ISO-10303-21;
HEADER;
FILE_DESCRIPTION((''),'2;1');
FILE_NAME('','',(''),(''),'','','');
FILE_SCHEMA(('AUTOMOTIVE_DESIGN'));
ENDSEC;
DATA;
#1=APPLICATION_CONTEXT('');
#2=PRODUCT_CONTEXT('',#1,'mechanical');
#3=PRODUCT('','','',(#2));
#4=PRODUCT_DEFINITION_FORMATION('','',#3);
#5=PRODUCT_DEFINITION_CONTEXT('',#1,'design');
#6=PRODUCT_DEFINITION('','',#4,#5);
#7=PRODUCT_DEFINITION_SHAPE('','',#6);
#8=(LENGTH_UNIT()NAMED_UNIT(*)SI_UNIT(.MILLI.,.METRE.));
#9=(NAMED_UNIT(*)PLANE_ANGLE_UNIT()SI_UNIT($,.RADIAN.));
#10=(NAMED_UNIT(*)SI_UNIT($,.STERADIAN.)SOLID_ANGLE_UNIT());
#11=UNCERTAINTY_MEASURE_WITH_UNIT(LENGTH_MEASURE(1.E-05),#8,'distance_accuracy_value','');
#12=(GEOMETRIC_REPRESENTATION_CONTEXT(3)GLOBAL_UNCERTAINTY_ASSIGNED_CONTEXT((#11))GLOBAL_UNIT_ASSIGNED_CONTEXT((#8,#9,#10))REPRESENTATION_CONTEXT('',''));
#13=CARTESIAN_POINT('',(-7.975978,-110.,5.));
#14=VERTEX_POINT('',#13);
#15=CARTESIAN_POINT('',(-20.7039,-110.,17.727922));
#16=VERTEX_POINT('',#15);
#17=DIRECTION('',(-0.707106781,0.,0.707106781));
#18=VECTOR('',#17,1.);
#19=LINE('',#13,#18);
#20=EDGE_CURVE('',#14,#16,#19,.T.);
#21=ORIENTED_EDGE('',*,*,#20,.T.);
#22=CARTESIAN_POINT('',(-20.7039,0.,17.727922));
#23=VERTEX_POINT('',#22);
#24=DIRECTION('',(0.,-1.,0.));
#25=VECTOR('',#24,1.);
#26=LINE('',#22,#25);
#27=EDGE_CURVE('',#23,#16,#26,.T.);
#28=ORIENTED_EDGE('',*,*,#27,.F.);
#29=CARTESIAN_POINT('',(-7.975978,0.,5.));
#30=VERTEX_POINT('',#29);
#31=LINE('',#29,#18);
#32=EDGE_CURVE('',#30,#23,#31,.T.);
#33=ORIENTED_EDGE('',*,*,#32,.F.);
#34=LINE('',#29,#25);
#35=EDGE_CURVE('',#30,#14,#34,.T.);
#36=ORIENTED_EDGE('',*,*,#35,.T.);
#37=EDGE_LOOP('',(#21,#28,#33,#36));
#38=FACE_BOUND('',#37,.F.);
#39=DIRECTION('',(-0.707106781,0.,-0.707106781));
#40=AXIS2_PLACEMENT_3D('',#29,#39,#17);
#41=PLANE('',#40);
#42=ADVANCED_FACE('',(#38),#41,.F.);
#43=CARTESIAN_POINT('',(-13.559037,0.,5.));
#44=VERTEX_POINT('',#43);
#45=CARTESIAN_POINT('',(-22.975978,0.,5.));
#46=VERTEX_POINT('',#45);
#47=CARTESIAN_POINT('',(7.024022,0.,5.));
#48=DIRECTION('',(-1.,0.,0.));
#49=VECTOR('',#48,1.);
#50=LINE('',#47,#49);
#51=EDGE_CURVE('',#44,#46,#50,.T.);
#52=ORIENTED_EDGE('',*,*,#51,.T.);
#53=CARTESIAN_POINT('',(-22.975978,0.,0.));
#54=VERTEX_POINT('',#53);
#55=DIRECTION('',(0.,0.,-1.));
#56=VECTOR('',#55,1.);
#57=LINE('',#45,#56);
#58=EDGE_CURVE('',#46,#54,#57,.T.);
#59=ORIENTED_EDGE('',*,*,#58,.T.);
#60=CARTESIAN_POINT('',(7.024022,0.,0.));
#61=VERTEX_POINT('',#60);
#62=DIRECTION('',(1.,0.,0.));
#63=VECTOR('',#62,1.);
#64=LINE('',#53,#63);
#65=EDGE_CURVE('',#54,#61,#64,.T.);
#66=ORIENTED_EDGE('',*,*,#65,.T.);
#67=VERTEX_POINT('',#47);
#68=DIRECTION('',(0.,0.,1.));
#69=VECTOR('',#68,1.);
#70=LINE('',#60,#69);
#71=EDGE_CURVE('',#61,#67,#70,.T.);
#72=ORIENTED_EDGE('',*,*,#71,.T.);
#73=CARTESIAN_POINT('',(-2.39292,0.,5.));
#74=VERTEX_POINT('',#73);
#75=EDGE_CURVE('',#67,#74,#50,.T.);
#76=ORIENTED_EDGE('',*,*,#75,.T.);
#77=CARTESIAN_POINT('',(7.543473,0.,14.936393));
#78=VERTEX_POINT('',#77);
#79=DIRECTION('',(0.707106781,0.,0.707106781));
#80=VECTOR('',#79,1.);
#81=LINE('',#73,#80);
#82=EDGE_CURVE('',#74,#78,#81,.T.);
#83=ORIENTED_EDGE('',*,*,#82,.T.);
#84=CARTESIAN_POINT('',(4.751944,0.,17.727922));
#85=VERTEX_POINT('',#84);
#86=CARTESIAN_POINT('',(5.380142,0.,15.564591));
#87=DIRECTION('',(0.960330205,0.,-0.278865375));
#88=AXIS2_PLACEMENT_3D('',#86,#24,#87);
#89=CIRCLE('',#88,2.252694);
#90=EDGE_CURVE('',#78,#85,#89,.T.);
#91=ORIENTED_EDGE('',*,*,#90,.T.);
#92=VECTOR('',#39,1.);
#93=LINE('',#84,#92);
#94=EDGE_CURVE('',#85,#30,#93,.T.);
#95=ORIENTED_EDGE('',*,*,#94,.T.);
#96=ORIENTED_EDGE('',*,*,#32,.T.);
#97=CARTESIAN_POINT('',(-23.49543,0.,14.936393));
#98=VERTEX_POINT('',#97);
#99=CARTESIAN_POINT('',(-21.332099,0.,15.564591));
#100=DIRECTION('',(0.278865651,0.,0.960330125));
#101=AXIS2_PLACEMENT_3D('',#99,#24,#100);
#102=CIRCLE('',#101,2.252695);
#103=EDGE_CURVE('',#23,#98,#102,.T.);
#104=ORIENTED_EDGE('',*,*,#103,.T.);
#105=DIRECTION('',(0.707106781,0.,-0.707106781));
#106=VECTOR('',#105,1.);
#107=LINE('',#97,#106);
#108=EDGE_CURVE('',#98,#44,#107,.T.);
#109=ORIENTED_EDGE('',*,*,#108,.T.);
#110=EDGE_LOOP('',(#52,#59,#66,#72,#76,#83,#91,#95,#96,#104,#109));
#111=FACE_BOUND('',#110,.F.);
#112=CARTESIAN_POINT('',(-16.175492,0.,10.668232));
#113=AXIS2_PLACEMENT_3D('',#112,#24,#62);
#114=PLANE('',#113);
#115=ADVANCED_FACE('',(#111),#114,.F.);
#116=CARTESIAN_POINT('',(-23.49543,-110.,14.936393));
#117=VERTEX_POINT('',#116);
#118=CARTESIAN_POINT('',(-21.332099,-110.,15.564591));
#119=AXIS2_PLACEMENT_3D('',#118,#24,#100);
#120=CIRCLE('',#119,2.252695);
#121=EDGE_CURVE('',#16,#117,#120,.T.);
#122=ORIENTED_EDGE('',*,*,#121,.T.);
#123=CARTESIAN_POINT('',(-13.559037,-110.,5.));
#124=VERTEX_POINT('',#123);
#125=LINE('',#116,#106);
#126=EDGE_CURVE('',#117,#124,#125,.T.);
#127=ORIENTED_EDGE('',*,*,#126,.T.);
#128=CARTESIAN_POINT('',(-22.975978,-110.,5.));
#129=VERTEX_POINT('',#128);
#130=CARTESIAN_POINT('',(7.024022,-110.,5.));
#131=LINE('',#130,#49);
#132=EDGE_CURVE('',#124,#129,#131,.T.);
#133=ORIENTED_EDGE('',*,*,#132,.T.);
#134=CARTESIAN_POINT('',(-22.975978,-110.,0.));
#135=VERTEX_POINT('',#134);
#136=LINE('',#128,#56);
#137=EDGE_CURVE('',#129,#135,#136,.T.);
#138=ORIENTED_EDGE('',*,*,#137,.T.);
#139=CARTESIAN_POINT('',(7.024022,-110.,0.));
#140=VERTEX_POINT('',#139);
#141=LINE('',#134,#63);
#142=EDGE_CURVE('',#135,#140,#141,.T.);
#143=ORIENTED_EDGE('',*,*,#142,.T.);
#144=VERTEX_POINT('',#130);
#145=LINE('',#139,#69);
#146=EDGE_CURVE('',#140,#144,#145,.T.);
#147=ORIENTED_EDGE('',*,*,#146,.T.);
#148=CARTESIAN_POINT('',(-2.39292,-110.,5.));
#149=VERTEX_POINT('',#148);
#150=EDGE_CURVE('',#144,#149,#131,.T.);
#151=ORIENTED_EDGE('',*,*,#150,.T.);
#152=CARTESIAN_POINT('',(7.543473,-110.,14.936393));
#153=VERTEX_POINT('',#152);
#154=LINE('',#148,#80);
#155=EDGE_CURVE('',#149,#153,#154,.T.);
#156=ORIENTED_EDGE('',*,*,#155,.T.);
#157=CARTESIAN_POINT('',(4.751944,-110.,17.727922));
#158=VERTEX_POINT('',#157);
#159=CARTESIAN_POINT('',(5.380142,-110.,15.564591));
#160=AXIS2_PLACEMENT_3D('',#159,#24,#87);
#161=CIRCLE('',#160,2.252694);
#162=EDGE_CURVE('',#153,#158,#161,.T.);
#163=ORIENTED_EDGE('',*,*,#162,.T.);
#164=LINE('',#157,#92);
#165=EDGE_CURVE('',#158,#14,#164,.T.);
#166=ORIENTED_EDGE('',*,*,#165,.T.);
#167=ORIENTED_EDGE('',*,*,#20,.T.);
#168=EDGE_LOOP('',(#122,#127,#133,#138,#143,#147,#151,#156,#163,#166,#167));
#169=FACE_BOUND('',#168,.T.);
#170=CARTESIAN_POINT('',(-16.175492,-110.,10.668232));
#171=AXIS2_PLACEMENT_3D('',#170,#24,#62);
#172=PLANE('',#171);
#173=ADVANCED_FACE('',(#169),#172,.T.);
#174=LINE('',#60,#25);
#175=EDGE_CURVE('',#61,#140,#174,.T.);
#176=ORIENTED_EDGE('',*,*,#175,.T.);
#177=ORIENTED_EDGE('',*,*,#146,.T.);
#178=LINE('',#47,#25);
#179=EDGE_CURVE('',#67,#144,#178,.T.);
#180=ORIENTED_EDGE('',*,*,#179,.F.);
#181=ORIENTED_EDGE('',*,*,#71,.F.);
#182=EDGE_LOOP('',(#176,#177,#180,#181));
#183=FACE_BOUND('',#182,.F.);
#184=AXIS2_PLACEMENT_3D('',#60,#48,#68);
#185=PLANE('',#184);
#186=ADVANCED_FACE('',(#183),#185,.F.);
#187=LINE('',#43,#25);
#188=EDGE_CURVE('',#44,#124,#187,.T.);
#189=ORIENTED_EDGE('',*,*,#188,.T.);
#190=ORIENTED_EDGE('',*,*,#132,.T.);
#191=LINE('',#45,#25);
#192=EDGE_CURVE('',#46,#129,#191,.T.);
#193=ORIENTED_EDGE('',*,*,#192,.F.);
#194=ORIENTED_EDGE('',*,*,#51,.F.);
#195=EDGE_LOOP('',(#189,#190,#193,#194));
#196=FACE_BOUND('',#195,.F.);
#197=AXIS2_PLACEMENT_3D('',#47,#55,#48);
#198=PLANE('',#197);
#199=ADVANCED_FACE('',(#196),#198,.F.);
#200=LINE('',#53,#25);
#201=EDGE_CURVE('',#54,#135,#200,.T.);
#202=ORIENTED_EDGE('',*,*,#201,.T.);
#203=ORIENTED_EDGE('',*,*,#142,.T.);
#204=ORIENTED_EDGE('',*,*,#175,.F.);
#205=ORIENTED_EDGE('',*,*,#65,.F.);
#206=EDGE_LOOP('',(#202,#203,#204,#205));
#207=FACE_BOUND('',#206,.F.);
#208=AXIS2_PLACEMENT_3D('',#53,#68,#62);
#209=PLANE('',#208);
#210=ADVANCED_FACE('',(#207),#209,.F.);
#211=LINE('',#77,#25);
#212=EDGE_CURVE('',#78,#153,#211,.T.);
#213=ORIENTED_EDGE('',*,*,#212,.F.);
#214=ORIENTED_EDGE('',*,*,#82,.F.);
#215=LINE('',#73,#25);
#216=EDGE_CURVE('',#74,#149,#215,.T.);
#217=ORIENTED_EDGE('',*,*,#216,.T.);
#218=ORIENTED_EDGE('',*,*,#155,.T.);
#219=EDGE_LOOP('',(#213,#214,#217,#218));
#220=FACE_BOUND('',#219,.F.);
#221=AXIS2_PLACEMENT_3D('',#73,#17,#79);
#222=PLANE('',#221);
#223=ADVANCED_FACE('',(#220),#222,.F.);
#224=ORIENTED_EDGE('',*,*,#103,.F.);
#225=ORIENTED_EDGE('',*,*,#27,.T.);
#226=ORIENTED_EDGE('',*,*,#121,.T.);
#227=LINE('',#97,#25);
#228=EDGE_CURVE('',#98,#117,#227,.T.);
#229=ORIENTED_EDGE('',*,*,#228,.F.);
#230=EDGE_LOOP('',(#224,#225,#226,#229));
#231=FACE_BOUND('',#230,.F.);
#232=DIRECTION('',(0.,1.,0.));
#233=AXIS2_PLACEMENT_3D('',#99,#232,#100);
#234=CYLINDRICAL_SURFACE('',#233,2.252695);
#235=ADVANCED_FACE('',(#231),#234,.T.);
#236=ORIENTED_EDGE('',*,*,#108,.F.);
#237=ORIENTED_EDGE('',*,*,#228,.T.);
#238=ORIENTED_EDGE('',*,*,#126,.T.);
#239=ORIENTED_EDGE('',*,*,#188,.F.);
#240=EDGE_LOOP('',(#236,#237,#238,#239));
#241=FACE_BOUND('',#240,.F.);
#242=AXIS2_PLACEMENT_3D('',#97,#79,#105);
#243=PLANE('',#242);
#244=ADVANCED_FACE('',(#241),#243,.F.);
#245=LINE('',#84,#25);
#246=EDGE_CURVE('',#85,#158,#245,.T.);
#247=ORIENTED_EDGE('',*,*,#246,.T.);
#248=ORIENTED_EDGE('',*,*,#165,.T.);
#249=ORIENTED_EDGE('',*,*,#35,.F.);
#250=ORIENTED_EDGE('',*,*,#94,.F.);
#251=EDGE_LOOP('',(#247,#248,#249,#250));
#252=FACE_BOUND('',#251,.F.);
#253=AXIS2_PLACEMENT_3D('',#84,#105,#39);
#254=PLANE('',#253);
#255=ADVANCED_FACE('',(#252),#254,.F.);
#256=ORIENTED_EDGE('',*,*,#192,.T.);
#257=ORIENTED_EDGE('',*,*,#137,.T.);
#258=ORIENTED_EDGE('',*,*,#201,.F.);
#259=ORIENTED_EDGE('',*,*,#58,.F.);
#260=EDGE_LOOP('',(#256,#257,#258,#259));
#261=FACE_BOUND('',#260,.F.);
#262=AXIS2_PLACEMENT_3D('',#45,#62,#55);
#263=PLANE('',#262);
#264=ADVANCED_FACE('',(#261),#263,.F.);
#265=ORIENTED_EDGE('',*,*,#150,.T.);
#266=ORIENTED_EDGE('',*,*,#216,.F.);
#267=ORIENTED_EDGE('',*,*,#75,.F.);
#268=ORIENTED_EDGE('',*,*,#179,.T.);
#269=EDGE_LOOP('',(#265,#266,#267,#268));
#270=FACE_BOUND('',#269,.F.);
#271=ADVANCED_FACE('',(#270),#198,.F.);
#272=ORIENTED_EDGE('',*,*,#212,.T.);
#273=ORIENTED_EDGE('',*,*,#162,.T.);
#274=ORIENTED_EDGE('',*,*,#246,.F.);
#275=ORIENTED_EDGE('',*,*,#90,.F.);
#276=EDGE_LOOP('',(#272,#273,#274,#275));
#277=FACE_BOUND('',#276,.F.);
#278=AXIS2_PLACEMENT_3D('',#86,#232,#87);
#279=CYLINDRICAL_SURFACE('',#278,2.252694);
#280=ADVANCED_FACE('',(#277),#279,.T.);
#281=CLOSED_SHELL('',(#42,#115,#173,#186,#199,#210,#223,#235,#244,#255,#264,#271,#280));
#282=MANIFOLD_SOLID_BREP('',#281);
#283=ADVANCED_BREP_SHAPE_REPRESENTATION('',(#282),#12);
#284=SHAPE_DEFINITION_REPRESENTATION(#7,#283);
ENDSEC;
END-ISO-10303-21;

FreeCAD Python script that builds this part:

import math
import FreeCAD as App
import Part
import Sketcher

V = App.Vector

doc = App.newDocument("Part")
body = doc.addObject("PartDesign::Body", "Body")

# Sketch on XZ plane
sketch1 = body.newObject("Sketcher::SketchObject", "Sketch")
sketch1.AttachmentSupport = (doc.getObject("XZ_Plane"), [""])
sketch1.MapMode = "FlatFace"
sketch1.addGeometry([
    Part.LineSegment(V(-23, 5, 0), V(-23, 0, 0)),
    Part.LineSegment(V(-23, 0, 0), V(7, 0, 0)),
    Part.LineSegment(V(7, 0, 0), V(7, 5, 0)),
    Part.LineSegment(V(7, 5, 0), V(-23, 5, 0)),
], False)
sketch1.addConstraint([
    Sketcher.Constraint("Coincident", 0, 2, 1, 1),
    Sketcher.Constraint("Coincident", 1, 2, 2, 1),
    Sketcher.Constraint("Coincident", 2, 2, 3, 1),
    Sketcher.Constraint("Coincident", 3, 2, 0, 1),
    Sketcher.Constraint("Vertical", 0),
    Sketcher.Constraint("Horizontal", 1),
    Sketcher.Constraint("Vertical", 2),
    Sketcher.Constraint("Horizontal", 3),
    Sketcher.Constraint("PointOnObject", 0, 2, -1),
    Sketcher.Constraint("DistanceX", 1, 1, 1, 2, 30.0),
    Sketcher.Constraint("DistanceY", 0, 2, 0, 1, 5.0),
    Sketcher.Constraint("DistanceX", 0, 2, -1, 1, 22.975978),
])
pad1 = body.newObject("PartDesign::Pad", "Pad")
pad1.Profile = sketch1
pad1.Length = 110

# Sketch on XZ plane
sketch2 = body.newObject("Sketcher::SketchObject", "Sketch001")
sketch2.AttachmentSupport = (doc.getObject("XZ_Plane"), [""])
sketch2.MapMode = "FlatFace"
sketch2.addGeometry([
    Part.LineSegment(V(-23.5, 14.9, 0), V(-13.6, 5, 0)),  # 0
    Part.LineSegment(V(-13.6, 5, 0), V(-8, 5, 0)),  # 1
    Part.LineSegment(V(-8, 5, 0), V(-20.7, 17.7, 0)),  # 2
    Part.ArcOfCircle(Part.Circle(V(-21.3, 15.6, 0), V(0, 0, 1), 2.3), math.radians(74), math.radians(196)),  # 3
    Part.LineSegment(V(-8, 5, 0), V(-2.4, 5, 0)),  # 4
    Part.LineSegment(V(-2.4, 5, 0), V(7.5, 14.9, 0)),  # 5
    Part.ArcOfCircle(Part.Circle(V(5.4, 15.6, 0), V(0, 0, 1), 2.3), math.radians(-16), math.radians(106)),  # 6
    Part.LineSegment(V(4.8, 17.7, 0), V(-8, 5, 0)),  # 7
], False)
sketch2.addConstraint([
    Sketcher.Constraint("Coincident", 0, 2, 1, 1),
    Sketcher.Constraint("Coincident", 1, 2, 2, 1),
    Sketcher.Constraint("Coincident", 2, 2, 3, 1),
    Sketcher.Constraint("Coincident", 3, 2, 0, 1),
    Sketcher.Constraint("Coincident", 4, 2, 5, 1),
    Sketcher.Constraint("Coincident", 5, 2, 6, 1),
    Sketcher.Constraint("Coincident", 6, 2, 7, 1),
    Sketcher.Constraint("Coincident", 7, 2, 4, 1),
    Sketcher.Constraint("Horizontal", 1),
    Sketcher.Constraint("Horizontal", 4),
    Sketcher.Constraint("Coincident", 7, 2, 1, 2),
    Sketcher.Constraint("Equal", 3, 6),
    Sketcher.Constraint("Parallel", 0, 2),
    Sketcher.Constraint("Perpendicular", 2, 5),
    Sketcher.Constraint("Parallel", 5, 7),
    Sketcher.Constraint("Horizontal", 3, 3, 6, 3),
    Sketcher.Constraint("Horizontal", 3, 2, 5, 2),
    Sketcher.Constraint("Horizontal", 2, 2, 6, 2),
    Sketcher.Constraint("Equal", 1, 4),
    Sketcher.Constraint("Distance", 2, 18.0),
    Sketcher.Constraint("DistanceY", -1, 1, 0, 2, 5.0),
    Sketcher.Constraint("Radius", 3, 2.252695),
    Sketcher.Constraint("DistanceX", 1, 1, 1, 2, 5.583059),
    Sketcher.Constraint("DistanceX", 3, 3, -1, 1, 21.332099),
    Sketcher.Constraint("DistanceX", 2, 2, -1, 1, 20.7039),
])
pad2 = body.newObject("PartDesign::Pad", "Pad001")
pad2.Profile = sketch2
pad2.Length = 110

doc.recompute()
